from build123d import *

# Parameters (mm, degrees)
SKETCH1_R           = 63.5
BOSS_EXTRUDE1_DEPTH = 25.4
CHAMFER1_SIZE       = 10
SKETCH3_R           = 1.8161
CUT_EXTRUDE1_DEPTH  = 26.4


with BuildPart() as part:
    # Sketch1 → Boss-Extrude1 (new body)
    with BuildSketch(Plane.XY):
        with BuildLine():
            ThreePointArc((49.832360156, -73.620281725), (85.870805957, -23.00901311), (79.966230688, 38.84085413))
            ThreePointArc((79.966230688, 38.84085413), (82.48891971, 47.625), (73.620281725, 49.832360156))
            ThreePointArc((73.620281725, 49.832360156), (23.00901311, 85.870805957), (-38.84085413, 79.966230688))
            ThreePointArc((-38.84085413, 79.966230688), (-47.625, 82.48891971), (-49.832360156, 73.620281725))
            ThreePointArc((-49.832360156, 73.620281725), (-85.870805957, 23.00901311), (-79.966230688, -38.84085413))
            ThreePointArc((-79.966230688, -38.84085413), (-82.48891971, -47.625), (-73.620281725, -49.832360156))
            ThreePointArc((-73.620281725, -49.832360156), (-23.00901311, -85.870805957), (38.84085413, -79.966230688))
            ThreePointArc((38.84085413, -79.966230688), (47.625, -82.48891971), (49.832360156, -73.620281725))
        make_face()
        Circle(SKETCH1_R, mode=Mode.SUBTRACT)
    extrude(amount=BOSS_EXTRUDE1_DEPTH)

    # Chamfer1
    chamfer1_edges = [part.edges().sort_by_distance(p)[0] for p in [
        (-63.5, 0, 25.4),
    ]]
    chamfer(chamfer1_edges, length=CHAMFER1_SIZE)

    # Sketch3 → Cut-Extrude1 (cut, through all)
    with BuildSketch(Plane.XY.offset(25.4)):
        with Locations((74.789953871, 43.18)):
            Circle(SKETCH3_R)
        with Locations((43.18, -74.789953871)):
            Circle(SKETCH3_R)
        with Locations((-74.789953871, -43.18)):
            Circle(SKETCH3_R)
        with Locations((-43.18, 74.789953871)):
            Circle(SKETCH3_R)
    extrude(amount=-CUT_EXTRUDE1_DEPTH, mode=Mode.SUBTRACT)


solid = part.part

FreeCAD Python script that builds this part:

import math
import FreeCAD as App
import Part
import Sketcher
Q = App.Units.Quantity


def edges_at(feature, points):
    """Names of the edges that pass closest to the given points."""
    edges = feature.Shape.Edges
    near = lambda p: min(range(len(edges)), key=lambda i: edges[i].distToShape(Part.Vertex(*p))[0])
    return sorted({f"Edge{near(p) + 1}" for p in points})

doc = App.newDocument("Part")
body = doc.addObject("PartDesign::Body", "Body")

sketch1 = body.newObject("Sketcher::SketchObject", "Sketch")
sketch1.AttachmentSupport = (doc.getObject("XY_Plane"), [""])
sketch1.MapMode = "FlatFace"
sketch1.addGeometry([
    Part.ArcOfCircle(Part.Circle(App.Vector(0, 0, 0), App.Vector(0, 0, 1), 89), math.radians(-56), math.radians(26)),
    Part.ArcOfCircle(Part.Circle(App.Vector(77, 44, 0), App.Vector(0, 0, 1), 6), math.radians(-62), math.radians(122)),
    Part.ArcOfCircle(Part.Circle(App.Vector(0, 0, 0), App.Vector(0, 0, 1), 89), math.radians(34), math.radians(116)),
    Part.ArcOfCircle(Part.Circle(App.Vector(-44, 77, 0), App.Vector(0, 0, 1), 6), math.radians(28), math.radians(212)),
    Part.ArcOfCircle(Part.Circle(App.Vector(0, 0, 0), App.Vector(0, 0, 1), 89), math.radians(124), math.radians(206)),
    Part.ArcOfCircle(Part.Circle(App.Vector(-77, -44, 0), App.Vector(0, 0, 1), 6), math.radians(118), math.radians(302)),
    Part.ArcOfCircle(Part.Circle(App.Vector(0, 0, 0), App.Vector(0, 0, 1), 89), math.radians(-146), math.radians(-64)),
    Part.ArcOfCircle(Part.Circle(App.Vector(44, -77, 0), App.Vector(0, 0, 1), 6), math.radians(-152), math.radians(32)),
    Part.Circle(App.Vector(0, 0, 0), App.Vector(0, 0, 1), 64),
], False)
sketch1.addConstraint([
    Sketcher.Constraint("Coincident", 0, 2, 1, 1),
    Sketcher.Constraint("Coincident", 1, 2, 2, 1),
    Sketcher.Constraint("Coincident", 2, 2, 3, 1),
    Sketcher.Constraint("Coincident", 3, 2, 4, 1),
    Sketcher.Constraint("Coincident", 4, 2, 5, 1),
    Sketcher.Constraint("Coincident", 5, 2, 6, 1),
    Sketcher.Constraint("Coincident", 6, 2, 7, 1),
    Sketcher.Constraint("Coincident", 7, 2, 0, 1),
    Sketcher.Constraint("Coincident", 0, 3, -1, 1),
    Sketcher.Constraint("Coincident", 2, 3, -1, 1),
    Sketcher.Constraint("Coincident", 4, 3, -1, 1),
    Sketcher.Constraint("Coincident", 6, 3, -1, 1),
    Sketcher.Constraint("Coincident", 8, 3, -1, 1),
    Sketcher.Constraint("Equal", 0, 2),
    Sketcher.Constraint("Equal", 1, 3),
    Sketcher.Constraint("Equal", 2, 4),
    Sketcher.Constraint("Equal", 3, 5),
    Sketcher.Constraint("Equal", 4, 6),
    Sketcher.Constraint("Equal", 5, 7),
    Sketcher.Constraint("Symmetric", 1, 3, 5, 3, -1, 1),
    Sketcher.Constraint("Symmetric", 3, 3, 7, 3, -1, 1),
    Sketcher.Constraint("Diameter", 8, Q("5 in")),
    Sketcher.Constraint("Radius", 0, Q("3.5 in")),
    Sketcher.Constraint("Radius", 1, Q("0.25 in")),
    Sketcher.Constraint("DistanceY", 5, 3, 1, 3, Q("3.5 in")),
    Sketcher.Constraint("DistanceX", 3, 3, -1, 1, Q("1.75 in")),
    Sketcher.Constraint("DistanceX", -1, 1, 1, 3, Q("76.989658 mm")),
    Sketcher.Constraint("DistanceY", -1, 1, 3, 3, Q("76.989658 mm")),
])
pad1 = body.newObject("PartDesign::Pad", "Pad")
pad1.Profile = sketch1
pad1.Length = Q("1 in")
doc.recompute()

chamfer = body.newObject("PartDesign::Chamfer", "Chamfer")
chamfer.Base = (pad1, edges_at(pad1, [(-63.5, 0, 25.4)]))
chamfer.Size = 10

sketch2 = body.newObject("Sketcher::SketchObject", "Sketch001")
sketch2.AttachmentSupport = (doc.getObject("XY_Plane"), [""])
sketch2.MapMode = "FlatFace"
sketch2.AttachmentOffset = App.Placement(App.Vector(0, 0, 1 * 25.4), App.Rotation())
sketch2.addGeometry([
    Part.Circle(App.Vector(74.8, 43.2, 0), App.Vector(0, 0, 1), 1.8),
    Part.Circle(App.Vector(43.2, -74.8, 0), App.Vector(0, 0, 1), 1.8),
    Part.Circle(App.Vector(-74.8, -43.2, 0), App.Vector(0, 0, 1), 1.8),
    Part.Circle(App.Vector(-43.2, 74.8, 0), App.Vector(0, 0, 1), 1.8),
], False)
sketch2.addConstraint([
    Sketcher.Constraint("Equal", 0, 1),
    Sketcher.Constraint("Equal", 1, 2),
    Sketcher.Constraint("Equal", 2, 3),
    Sketcher.Constraint("Symmetric", 0, 3, 2, 3, -1, 1),
    Sketcher.Constraint("Symmetric", 1, 3, 3, 3, -1, 1),
    Sketcher.Constraint("Diameter", 0, Q("0.143 in")),
    Sketcher.Constraint("DistanceY", -1, 1, 0, 3, Q("1.7 in")),
    Sketcher.Constraint("DistanceX", -1, 1, 1, 3, Q("1.7 in")),
    Sketcher.Constraint("DistanceX", -1, 1, 0, 3, Q("74.789954 mm")),
    Sketcher.Constraint("DistanceY", 1, 3, -1, 1, Q("74.789954 mm")),
])
pocket1 = body.newObject("PartDesign::Pocket", "Pocket")
pocket1.Profile = sketch2
pocket1.Type = "ThroughAll"

doc.recompute()
